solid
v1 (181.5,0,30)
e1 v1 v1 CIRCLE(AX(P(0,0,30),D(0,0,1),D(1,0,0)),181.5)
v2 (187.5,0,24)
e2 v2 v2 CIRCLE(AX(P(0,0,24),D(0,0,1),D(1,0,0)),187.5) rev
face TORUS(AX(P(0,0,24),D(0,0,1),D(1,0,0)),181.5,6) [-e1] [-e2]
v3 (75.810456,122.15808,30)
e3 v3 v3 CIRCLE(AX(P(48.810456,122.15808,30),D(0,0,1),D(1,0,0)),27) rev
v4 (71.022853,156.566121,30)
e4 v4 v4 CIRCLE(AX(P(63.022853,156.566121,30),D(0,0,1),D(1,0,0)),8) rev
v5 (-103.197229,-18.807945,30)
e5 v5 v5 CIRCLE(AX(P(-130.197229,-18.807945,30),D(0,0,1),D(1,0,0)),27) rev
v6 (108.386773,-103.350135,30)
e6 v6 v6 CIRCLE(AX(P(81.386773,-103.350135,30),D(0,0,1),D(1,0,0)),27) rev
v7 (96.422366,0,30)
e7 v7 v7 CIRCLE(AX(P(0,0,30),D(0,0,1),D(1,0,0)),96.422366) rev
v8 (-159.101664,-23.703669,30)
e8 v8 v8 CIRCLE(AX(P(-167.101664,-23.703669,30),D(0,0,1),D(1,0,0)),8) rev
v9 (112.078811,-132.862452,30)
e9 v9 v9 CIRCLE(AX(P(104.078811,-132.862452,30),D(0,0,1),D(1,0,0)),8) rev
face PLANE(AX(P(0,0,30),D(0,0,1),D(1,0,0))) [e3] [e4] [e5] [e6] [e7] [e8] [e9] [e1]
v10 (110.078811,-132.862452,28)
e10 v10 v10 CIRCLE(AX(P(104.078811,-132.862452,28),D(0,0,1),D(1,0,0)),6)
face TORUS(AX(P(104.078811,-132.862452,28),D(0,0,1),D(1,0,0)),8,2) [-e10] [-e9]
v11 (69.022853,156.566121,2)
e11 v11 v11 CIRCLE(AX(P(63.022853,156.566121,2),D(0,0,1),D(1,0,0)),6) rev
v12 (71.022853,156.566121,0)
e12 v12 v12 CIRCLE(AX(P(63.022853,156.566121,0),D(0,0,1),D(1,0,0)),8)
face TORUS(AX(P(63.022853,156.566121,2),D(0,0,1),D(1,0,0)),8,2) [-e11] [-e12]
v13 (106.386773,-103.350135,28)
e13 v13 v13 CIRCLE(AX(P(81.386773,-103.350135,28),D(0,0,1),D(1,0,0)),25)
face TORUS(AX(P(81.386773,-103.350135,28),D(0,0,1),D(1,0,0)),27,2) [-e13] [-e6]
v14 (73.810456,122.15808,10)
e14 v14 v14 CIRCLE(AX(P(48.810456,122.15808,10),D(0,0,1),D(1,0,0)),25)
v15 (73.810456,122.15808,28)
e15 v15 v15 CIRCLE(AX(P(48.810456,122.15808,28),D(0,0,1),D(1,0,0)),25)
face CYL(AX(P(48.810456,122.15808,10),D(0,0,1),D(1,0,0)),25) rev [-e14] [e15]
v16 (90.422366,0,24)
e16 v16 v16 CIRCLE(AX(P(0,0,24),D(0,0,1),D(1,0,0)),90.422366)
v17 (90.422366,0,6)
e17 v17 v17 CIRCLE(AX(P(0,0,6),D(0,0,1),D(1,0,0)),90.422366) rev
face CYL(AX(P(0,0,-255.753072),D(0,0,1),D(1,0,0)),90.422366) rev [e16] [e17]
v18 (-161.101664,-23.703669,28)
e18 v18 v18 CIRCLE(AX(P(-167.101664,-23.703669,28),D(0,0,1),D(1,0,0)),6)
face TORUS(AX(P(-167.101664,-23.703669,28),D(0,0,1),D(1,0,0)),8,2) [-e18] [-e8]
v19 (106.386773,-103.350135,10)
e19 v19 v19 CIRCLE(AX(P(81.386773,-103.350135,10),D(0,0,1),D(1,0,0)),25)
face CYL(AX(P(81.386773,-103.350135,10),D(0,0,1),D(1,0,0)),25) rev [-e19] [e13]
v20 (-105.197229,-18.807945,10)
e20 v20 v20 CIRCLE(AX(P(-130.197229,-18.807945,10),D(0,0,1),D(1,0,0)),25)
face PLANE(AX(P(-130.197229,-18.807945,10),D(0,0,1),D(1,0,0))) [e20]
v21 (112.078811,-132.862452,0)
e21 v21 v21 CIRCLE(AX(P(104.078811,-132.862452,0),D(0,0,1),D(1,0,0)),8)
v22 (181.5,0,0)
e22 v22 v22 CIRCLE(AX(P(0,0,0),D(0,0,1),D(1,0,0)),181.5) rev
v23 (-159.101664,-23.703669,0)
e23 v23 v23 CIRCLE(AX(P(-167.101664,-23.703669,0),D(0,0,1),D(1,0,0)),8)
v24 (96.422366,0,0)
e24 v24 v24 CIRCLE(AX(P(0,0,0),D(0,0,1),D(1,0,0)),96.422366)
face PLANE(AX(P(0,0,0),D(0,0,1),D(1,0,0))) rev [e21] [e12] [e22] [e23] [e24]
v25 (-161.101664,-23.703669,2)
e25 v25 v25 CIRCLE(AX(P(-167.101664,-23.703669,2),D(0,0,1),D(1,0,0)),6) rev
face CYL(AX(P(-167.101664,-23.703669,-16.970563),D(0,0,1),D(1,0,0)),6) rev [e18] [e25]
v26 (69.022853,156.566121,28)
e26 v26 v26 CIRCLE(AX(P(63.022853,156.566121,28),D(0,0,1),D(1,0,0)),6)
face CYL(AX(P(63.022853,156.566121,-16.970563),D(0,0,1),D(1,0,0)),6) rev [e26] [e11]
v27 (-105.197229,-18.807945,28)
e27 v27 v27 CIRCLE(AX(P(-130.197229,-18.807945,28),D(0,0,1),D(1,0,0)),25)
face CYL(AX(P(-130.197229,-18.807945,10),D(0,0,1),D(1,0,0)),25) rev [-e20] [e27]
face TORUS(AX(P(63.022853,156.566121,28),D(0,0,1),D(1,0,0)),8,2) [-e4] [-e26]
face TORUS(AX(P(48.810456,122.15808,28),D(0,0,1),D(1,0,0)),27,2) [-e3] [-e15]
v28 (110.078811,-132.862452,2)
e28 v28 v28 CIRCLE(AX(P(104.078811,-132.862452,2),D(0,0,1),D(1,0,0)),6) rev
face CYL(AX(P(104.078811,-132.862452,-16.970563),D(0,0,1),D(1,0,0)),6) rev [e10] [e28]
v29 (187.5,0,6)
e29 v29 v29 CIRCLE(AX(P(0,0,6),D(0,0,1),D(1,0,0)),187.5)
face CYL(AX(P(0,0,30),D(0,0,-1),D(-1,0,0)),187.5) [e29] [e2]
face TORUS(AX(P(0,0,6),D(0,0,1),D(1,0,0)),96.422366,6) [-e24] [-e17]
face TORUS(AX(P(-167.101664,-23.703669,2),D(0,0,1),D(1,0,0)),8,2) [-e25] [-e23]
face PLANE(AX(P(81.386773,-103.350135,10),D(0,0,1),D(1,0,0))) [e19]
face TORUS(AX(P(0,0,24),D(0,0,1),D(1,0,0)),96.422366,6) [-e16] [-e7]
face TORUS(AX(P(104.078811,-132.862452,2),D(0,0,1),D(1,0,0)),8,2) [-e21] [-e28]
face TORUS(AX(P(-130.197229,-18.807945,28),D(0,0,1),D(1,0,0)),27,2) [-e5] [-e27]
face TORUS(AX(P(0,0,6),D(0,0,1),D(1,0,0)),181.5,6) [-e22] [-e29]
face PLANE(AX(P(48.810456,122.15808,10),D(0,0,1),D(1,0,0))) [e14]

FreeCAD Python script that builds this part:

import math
import FreeCAD as App
import Part
import Sketcher

V = App.Vector


def edges_at(feature, points):
    """Names of the edges that pass closest to the given points."""
    edges = feature.Shape.Edges
    near = lambda p: min(range(len(edges)), key=lambda i: edges[i].distToShape(Part.Vertex(*p))[0])
    return sorted({f"Edge{near(p) + 1}" for p in points})

doc = App.newDocument("Part")
body = doc.addObject("PartDesign::Body", "Body")

sketch1 = doc.addObject("Sketcher::SketchObject", "Sketch")
body.addObject(sketch1)
sketch1.AttachmentSupport = (doc.XY_Plane, [""])
sketch1.MapMode = "FlatFace"
sketch1.addGeometry(Part.Circle(V(0, 0, 0), V(0, 0, 1), 187.5), False)
sketch1.addConstraint([
    Sketcher.Constraint("Coincident", 0, 3, -1, 1),
    Sketcher.Constraint("Diameter", 0, 375.0),
])
pad1 = doc.addObject("PartDesign::Pad", "Pad")
body.addObject(pad1)
pad1.Profile = sketch1
pad1.Length = 30

sketch2 = doc.addObject("Sketcher::SketchObject", "Sketch001")
body.addObject(sketch2)
sketch2.AttachmentSupport = (doc.XY_Plane, [""])
sketch2.MapMode = "FlatFace"
sketch2.AttachmentOffset = App.Placement(V(0, 0, 30), App.Rotation())
sketch2.addGeometry([
    Part.Circle(V(48.810456, 122.15808, 0), V(0, 0, 1), 25),
    Part.Circle(V(81.386773, -103.350135, 0), V(0, 0, 1), 25),
    Part.Circle(V(-130.197229, -18.807945, 0), V(0, 0, 1), 25),
], False)
sketch2.addConstraint([
    Sketcher.Constraint("Equal", 0, 1),
    Sketcher.Constraint("Equal", 1, 2),
    Sketcher.Constraint("Diameter", 0, 50.0),
    Sketcher.Constraint("DistanceX", 2, 3, 1, 3, 211.584002),
    Sketcher.Constraint("DistanceY", -1, 1, 0, 3, 122.15808),
    Sketcher.Constraint("DistanceX", 2, 3, -1, 1, 130.197229),
    Sketcher.Constraint("DistanceY", 1, 3, 2, 3, 84.542191),
    Sketcher.Constraint("DistanceX", -1, 1, 0, 3, 48.810456),
    Sketcher.Constraint("DistanceY", 1, 3, -1, 1, 103.350135),
])
pocket1 = doc.addObject("PartDesign::Pocket", "Pocket")
body.addObject(pocket1)
pocket1.Profile = sketch2
pocket1.Length = 20

sketch3 = doc.addObject("Sketcher::SketchObject", "Sketch002")
body.addObject(sketch3)
sketch3.AttachmentSupport = (doc.XY_Plane, [""])
sketch3.MapMode = "FlatFace"
sketch3.AttachmentOffset = App.Placement(V(0, 0, 30), App.Rotation())
sketch3.addGeometry([
    Part.ArcOfCircle(Part.Circle(V(-167.101664, -23.703669, 0), V(0, 0, 1), 6), math.radians(0), math.radians(38.073644)),
    Part.ArcOfCircle(Part.Circle(V(-167.101664, -23.703669, 0), V(0, 0, 1), 6), math.radians(38.073644), math.radians(338.073644)),
    Part.ArcOfCircle(Part.Circle(V(-167.101664, -23.703669, 0), V(0, 0, 1), 6), math.radians(-21.926357), math.radians(0)),
    Part.ArcOfCircle(Part.Circle(V(104.078811, -132.862452, 0), V(0, 0, 1), 6), math.radians(0), math.radians(98.073644)),
    Part.ArcOfCircle(Part.Circle(V(104.078811, -132.862452, 0), V(0, 0, 1), 6), math.radians(98.073644), math.radians(158.073644)),
    Part.ArcOfCircle(Part.Circle(V(104.078811, -132.862452, 0), V(0, 0, 1), 6), math.radians(158.073644), math.radians(360)),
    Part.ArcOfCircle(Part.Circle(V(63.022853, 156.566121, 0), V(0, 0, 1), 6), math.radians(0), math.radians(218.073644)),
    Part.ArcOfCircle(Part.Circle(V(63.022853, 156.566121, 0), V(0, 0, 1), 6), math.radians(-141.926356), math.radians(-81.926356)),
    Part.ArcOfCircle(Part.Circle(V(63.022853, 156.566121, 0), V(0, 0, 1), 6), math.radians(-81.926356), math.radians(0)),
], False)
sketch3.addConstraint([
    Sketcher.Constraint("Tangent", 0, 2, 1, 1),
    Sketcher.Constraint("Tangent", 1, 2, 2, 1),
    Sketcher.Constraint("Tangent", 2, 2, 0, 1),
    Sketcher.Constraint("Tangent", 3, 2, 4, 1),
    Sketcher.Constraint("Tangent", 4, 2, 5, 1),
    Sketcher.Constraint("Tangent", 5, 2, 3, 1),
    Sketcher.Constraint("Tangent", 6, 2, 7, 1),
    Sketcher.Constraint("Tangent", 7, 2, 8, 1),
    Sketcher.Constraint("Tangent", 8, 2, 6, 1),
    Sketcher.Constraint("Equal", 2, 3),
    Sketcher.Constraint("Equal", 5, 6),
    Sketcher.Constraint("Horizontal", 1, 3, 2, 2),
    Sketcher.Constraint("Horizontal", 4, 3, 5, 2),
    Sketcher.Constraint("Horizontal", 7, 3, 8, 2),
    Sketcher.Constraint("Radius", 0, 6.0),
    Sketcher.Constraint("DistanceX", 2, 2, 3, 2, 264.337801),
    Sketcher.Constraint("DistanceX", 1, 2, 4, 2, 260.048501),
    Sketcher.Constraint("DistanceY", 0, 3, -1, 1, 23.703669),
    Sketcher.Constraint("DistanceX", -1, 1, 3, 3, 104.078811),
    Sketcher.Constraint("DistanceY", 3, 3, -1, 1, 132.862452),
    Sketcher.Constraint("DistanceY", -1, 1, 6, 3, 156.566121),
    Sketcher.Constraint("DistanceX", 0, 2, -1, 1, 162.378352),
    Sketcher.Constraint("DistanceY", 3, 2, -1, 1, 126.921922),
    Sketcher.Constraint("DistanceX", -1, 1, 6, 2, 58.29954),
    Sketcher.Constraint("DistanceY", -1, 1, 7, 2, 150.62559),
    Sketcher.Constraint("DistanceX", 6, 3, 5, 3, 41.055959),
    Sketcher.Constraint("DistanceY", 1, 2, 0, 2, 5.94053),
])
pocket2 = doc.addObject("PartDesign::Pocket", "Pocket001")
body.addObject(pocket2)
pocket2.Profile = sketch3
pocket2.Length = 30
doc.recompute()

fillet = doc.addObject("PartDesign::Fillet", "Fillet")
body.addObject(fillet)
fillet.Base = (pocket2, edges_at(pocket2, [(23.81, 122.158, 30), (56.387, -103.35, 30), (-155.197, -18.808, 30)]))
fillet.Radius = 2
doc.recompute()

fillet2 = doc.addObject("PartDesign::Fillet", "Fillet001")
body.addObject(fillet2)
fillet2.Base = (fillet, edges_at(fillet, [
    (102.938, -138.753, 30),
    (102.938, -138.753, 0),
    (-173.042, -24.546, 30),
    (-173.042, -24.546, 0),
    (61.066, 162.238, 0),
    (61.066, 162.238, 30),
]))
fillet2.Radius = 2
doc.recompute()

fillet3 = doc.addObject("PartDesign::Fillet", "Fillet002")
body.addObject(fillet3)
fillet3.Base = (fillet2, edges_at(fillet2, [(-187.5, 0, 0), (-187.5, 0, 30)]))
fillet3.Radius = 6

sketch4 = doc.addObject("Sketcher::SketchObject", "Sketch003")
body.addObject(sketch4)
sketch4.AttachmentSupport = (doc.XY_Plane, [""])
sketch4.MapMode = "FlatFace"
sketch4.AttachmentOffset = App.Placement(V(0, 0, 30), App.Rotation())
sketch4.addGeometry(Part.Circle(V(0, 0, 0), V(0, 0, 1), 90.422366), False)
sketch4.addConstraint([
    Sketcher.Constraint("Coincident", 0, 3, -1, 1),
    Sketcher.Constraint("Diameter", 0, 180.844731),
])
pocket3 = doc.addObject("PartDesign::Pocket", "Pocket002")
body.addObject(pocket3)
pocket3.Profile = sketch4
pocket3.Length = 30
doc.recompute()

fillet4 = doc.addObject("PartDesign::Fillet", "Fillet003")
body.addObject(fillet4)
fillet4.Base = (pocket3, edges_at(pocket3, [(-90.422, 0, 30), (-90.422, 0, 0)]))
fillet4.Radius = 6

doc.recompute()
